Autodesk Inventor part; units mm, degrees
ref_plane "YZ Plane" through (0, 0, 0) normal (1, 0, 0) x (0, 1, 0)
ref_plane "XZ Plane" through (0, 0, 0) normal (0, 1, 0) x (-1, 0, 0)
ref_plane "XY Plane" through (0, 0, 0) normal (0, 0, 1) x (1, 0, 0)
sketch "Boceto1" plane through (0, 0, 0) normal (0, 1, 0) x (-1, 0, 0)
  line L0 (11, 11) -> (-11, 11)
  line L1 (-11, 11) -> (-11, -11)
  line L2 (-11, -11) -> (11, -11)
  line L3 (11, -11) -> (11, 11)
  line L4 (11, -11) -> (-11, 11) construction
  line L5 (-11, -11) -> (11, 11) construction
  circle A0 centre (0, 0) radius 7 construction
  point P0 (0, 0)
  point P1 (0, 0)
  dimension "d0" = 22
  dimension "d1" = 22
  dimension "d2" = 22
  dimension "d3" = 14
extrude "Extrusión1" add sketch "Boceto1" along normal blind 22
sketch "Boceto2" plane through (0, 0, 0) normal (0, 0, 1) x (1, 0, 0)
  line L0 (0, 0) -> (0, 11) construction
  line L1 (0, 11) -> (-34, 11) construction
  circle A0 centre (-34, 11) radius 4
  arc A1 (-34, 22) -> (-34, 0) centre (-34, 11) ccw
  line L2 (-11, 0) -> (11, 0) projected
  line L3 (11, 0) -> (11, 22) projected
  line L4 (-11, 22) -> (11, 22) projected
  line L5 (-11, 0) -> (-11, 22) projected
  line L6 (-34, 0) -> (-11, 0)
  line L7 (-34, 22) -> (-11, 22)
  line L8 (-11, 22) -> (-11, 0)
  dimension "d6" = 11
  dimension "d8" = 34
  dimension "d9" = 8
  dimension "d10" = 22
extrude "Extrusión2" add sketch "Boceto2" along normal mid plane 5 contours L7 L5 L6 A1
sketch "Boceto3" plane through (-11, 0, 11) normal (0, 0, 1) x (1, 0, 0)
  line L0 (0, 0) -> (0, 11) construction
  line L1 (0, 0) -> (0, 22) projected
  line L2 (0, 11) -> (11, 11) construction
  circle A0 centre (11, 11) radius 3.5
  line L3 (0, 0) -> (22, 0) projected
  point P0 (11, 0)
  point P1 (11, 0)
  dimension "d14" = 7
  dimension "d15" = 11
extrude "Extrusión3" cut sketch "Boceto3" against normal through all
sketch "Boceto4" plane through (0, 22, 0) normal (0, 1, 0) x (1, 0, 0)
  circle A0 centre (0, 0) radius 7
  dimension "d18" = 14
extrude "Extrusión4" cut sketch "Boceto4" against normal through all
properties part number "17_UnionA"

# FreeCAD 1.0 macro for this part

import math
import FreeCAD as App
import Part
import Sketcher
Q = App.Units.Quantity

doc = App.newDocument("Part")
body = doc.addObject("PartDesign::Body", "Body")

# Sketch on XZ plane
sketch1 = body.newObject("Sketcher::SketchObject", "Sketch")
sketch1.AttachmentSupport = (doc.getObject("XZ_Plane"), [""])
sketch1.MapMode = "FlatFace"
sketch1.addGeometry([
    Part.LineSegment(App.Vector(-11, -11, 0), App.Vector(-11, 11, 0)),
    Part.LineSegment(App.Vector(-11, 11, 0), App.Vector(11, 11, 0)),
    Part.LineSegment(App.Vector(11, 11, 0), App.Vector(11, -11, 0)),
    Part.LineSegment(App.Vector(11, -11, 0), App.Vector(-11, -11, 0)),
], False)
sketch1.addConstraint([
    Sketcher.Constraint("Coincident", 0, 2, 1, 1),
    Sketcher.Constraint("Coincident", 1, 2, 2, 1),
    Sketcher.Constraint("Coincident", 2, 2, 3, 1),
    Sketcher.Constraint("Coincident", 3, 2, 0, 1),
    Sketcher.Constraint("Vertical", 0),
    Sketcher.Constraint("Horizontal", 1),
    Sketcher.Constraint("Vertical", 2),
    Sketcher.Constraint("Horizontal", 3),
    Sketcher.Constraint("Symmetric", 0, 2, 2, 2, -1, 1),
    Sketcher.Constraint("Equal", 3, 0),
    Sketcher.Constraint("DistanceX", 1, 1, 1, 2, Q("22 mm")),
])
pad1 = body.newObject("PartDesign::Pad", "Pad")
pad1.Profile = sketch1
pad1.Length = 22
pad1.Reversed = True

# Sketch on XY plane
sketch2 = body.newObject("Sketcher::SketchObject", "Sketch001")
sketch2.AttachmentSupport = (doc.getObject("XY_Plane"), [""])
sketch2.MapMode = "FlatFace"
sketch2.addGeometry([
    Part.LineSegment(App.Vector(-11, 22, 0), App.Vector(-34, 22, 0)),  # 0
    Part.ArcOfCircle(Part.Circle(App.Vector(-34, 11, 0), App.Vector(0, 0, 1), 11), math.radians(90), math.radians(270)),  # 1
    Part.LineSegment(App.Vector(-34, 0, 0), App.Vector(-11, 0, 0)),  # 2
    Part.LineSegment(App.Vector(-11, 0, 0), App.Vector(-11, 22, 0)),  # 3
    Part.Circle(App.Vector(-34, 11, 0), App.Vector(0, 0, 1), 4),  # 4
], False)
sketch2.addConstraint([
    Sketcher.Constraint("Tangent", 0, 2, 1, 1),
    Sketcher.Constraint("Tangent", 1, 2, 2, 1),
    Sketcher.Constraint("Coincident", 2, 2, 3, 1),
    Sketcher.Constraint("Coincident", 3, 2, 0, 1),
    Sketcher.Constraint("Horizontal", 0),
    Sketcher.Constraint("Horizontal", 2),
    Sketcher.Constraint("Vertical", 3),
    Sketcher.Constraint("Coincident", 4, 3, 1, 3),
    Sketcher.Constraint("PointOnObject", 1, 2, -1),
    Sketcher.Constraint("Diameter", 4, Q("8 mm")),
    Sketcher.Constraint("Radius", 1, Q("11 mm")),
    Sketcher.Constraint("DistanceX", 1, 3, -1, 1, Q("34 mm")),
    Sketcher.Constraint("DistanceX", 2, 2, -1, 1, Q("11 mm")),
])
pad2 = body.newObject("PartDesign::Pad", "Pad001")
pad2.Profile = sketch2
pad2.Length = 5
pad2.Midplane = True

# Sketch on XY plane
sketch3 = body.newObject("Sketcher::SketchObject", "Sketch002")
sketch3.AttachmentSupport = (doc.getObject("XY_Plane"), [""])
sketch3.MapMode = "FlatFace"
sketch3.AttachmentOffset = App.Placement(App.Vector(0, 0, 11), App.Rotation())
sketch3.addGeometry(Part.Circle(App.Vector(0, 11, 0), App.Vector(0, 0, 1), 3.5), False)
sketch3.addConstraint([
    Sketcher.Constraint("PointOnObject", 0, 3, -2),
    Sketcher.Constraint("Diameter", 0, Q("7 mm")),
    Sketcher.Constraint("DistanceY", -1, 1, 0, 3, Q("11 mm")),
])
pocket1 = body.newObject("PartDesign::Pocket", "Pocket")
pocket1.Profile = sketch3
pocket1.Type = "ThroughAll"

# Sketch on XZ plane
sketch4 = body.newObject("Sketcher::SketchObject", "Sketch003")
sketch4.AttachmentSupport = (doc.getObject("XZ_Plane"), [""])
sketch4.MapMode = "FlatFace"
sketch4.AttachmentOffset = App.Placement(App.Vector(0, 0, -22), App.Rotation())
sketch4.addGeometry(Part.Circle(App.Vector(0, 0, 0), App.Vector(0, 0, 1), 7), False)
sketch4.addConstraint([
    Sketcher.Constraint("Coincident", 0, 3, -1, 1),
    Sketcher.Constraint("Diameter", 0, Q("14 mm")),
])
pocket2 = body.newObject("PartDesign::Pocket", "Pocket001")
pocket2.Profile = sketch4
pocket2.Type = "ThroughAll"
pocket2.Reversed = True

doc.recompute()
